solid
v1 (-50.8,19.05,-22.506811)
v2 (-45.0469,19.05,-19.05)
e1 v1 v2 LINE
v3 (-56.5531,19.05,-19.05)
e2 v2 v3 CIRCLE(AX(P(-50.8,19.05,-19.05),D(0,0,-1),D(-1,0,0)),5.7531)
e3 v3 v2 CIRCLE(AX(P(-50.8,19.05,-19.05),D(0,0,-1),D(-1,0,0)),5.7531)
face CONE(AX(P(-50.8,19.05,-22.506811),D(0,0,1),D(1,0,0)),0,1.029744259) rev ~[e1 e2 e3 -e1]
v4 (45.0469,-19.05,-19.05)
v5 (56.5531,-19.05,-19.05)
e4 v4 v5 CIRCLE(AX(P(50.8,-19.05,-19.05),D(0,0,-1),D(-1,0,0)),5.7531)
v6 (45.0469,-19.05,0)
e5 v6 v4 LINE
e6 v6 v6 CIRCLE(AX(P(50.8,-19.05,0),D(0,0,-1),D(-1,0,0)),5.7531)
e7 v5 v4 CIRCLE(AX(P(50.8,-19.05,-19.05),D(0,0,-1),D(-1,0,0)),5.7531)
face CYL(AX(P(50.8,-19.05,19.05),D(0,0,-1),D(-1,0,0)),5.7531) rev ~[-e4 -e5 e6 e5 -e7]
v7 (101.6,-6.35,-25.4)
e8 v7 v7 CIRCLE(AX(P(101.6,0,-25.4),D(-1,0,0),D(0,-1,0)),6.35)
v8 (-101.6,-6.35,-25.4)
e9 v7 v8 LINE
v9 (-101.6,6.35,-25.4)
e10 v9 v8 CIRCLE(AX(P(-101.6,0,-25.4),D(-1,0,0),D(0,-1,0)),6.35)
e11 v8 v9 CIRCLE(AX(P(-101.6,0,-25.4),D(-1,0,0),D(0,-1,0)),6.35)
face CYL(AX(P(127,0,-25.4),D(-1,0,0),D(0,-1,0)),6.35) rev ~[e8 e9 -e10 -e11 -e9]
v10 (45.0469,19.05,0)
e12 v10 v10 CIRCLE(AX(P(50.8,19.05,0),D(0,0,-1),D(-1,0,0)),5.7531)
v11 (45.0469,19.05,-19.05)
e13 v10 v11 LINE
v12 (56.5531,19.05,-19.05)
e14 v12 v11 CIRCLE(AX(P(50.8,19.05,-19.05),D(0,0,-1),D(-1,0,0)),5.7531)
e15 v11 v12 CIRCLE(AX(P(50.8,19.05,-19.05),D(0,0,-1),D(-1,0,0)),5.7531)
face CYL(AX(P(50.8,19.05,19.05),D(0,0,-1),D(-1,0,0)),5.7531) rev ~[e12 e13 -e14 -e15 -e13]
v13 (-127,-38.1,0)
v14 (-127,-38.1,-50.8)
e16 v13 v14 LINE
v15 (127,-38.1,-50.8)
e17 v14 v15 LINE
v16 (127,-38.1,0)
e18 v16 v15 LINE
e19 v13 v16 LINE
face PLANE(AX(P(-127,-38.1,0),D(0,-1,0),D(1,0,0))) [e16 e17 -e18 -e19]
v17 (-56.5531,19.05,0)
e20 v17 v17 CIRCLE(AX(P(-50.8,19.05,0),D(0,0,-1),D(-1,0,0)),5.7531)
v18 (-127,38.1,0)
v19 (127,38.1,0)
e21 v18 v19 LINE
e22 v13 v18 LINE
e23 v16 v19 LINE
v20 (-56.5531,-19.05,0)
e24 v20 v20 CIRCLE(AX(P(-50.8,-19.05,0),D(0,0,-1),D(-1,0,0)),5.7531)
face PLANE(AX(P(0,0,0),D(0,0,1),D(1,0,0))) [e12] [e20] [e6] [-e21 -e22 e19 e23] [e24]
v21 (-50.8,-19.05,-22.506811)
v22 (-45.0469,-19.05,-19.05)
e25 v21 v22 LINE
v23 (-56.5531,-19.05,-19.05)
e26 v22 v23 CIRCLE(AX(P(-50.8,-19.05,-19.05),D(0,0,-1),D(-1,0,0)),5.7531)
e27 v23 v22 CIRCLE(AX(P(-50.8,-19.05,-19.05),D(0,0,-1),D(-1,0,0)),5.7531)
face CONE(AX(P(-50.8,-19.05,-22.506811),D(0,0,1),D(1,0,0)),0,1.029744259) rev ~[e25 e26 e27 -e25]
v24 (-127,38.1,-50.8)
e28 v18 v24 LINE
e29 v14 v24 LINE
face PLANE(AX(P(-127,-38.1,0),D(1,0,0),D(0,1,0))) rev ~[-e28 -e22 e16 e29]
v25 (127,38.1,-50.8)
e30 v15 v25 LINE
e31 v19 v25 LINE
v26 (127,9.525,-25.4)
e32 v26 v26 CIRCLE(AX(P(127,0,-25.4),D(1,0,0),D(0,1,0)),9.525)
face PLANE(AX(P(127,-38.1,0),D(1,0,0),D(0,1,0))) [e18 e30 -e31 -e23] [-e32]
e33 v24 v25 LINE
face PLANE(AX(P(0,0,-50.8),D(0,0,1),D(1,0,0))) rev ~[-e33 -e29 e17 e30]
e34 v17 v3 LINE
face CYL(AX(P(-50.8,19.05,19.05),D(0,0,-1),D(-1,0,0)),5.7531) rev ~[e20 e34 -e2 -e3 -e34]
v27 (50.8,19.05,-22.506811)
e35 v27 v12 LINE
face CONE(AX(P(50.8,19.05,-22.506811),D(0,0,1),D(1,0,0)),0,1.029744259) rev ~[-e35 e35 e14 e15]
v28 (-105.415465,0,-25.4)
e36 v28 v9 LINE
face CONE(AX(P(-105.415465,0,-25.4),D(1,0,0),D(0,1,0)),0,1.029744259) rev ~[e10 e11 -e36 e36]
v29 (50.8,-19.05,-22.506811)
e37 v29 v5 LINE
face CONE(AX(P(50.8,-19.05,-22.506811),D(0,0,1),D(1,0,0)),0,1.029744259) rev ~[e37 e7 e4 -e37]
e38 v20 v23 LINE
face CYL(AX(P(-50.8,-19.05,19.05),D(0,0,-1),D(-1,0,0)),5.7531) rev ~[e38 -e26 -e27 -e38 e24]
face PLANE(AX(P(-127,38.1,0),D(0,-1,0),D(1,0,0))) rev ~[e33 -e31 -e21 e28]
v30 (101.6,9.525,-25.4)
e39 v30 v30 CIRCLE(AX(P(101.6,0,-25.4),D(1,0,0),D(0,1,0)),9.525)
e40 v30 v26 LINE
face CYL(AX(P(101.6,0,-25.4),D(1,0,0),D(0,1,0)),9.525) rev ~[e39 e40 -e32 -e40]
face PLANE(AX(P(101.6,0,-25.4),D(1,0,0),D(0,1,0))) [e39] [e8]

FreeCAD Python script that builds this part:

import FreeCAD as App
import Part
import Sketcher
from FreeCAD import Vector
Q = App.Units.Quantity

doc = App.newDocument("Part")
params = doc.addObject("Spreadsheet::Sheet", "Params")
for row, (alias, value) in enumerate([
    ("sketch1_width", "10 in"),
    ("sketch1_height", "3 in"),
    ("pad1_length", "2 in"),
    ("sketch2_diameter", "0.453 in"),
    ("hole_diameter", "0.453 in"),
    ("hole_depth", "0.75 in"),
    ("sketch3_diameter", "0.5 in"),
    ("hole2_diameter", "0.5 in"),
    ("hole2_depth", "9 in"),
    ("hole2_cbore_diameter", "0.75 in"),
    ("hole2_cbore_depth", "1 in"),
], start=1):
    params.set(f"A{row}", alias)
    params.set(f"B{row}", "=" + value)
    params.setAlias(f"B{row}", alias)

body = doc.addObject("PartDesign::Body", "Body")

# Sketch on XY plane
sketch1 = body.newObject("Sketcher::SketchObject", "Sketch")
sketch1.AttachmentSupport = (doc.getObject("XY_Plane"), [""])
sketch1.MapMode = "FlatFace"
sketch1.addGeometry([
    Part.LineSegment(Vector(-127, 38, 0), Vector(-127, -38, 0)),
    Part.LineSegment(Vector(-127, -38, 0), Vector(127, -38, 0)),
    Part.LineSegment(Vector(127, -38, 0), Vector(127, 38, 0)),
    Part.LineSegment(Vector(127, 38, 0), Vector(-127, 38, 0)),
], False)
sketch1.addConstraint([
    Sketcher.Constraint("Coincident", 0, 2, 1, 1),
    Sketcher.Constraint("Coincident", 1, 2, 2, 1),
    Sketcher.Constraint("Coincident", 2, 2, 3, 1),
    Sketcher.Constraint("Coincident", 3, 2, 0, 1),
    Sketcher.Constraint("Vertical", 0),
    Sketcher.Constraint("Horizontal", 1),
    Sketcher.Constraint("Vertical", 2),
    Sketcher.Constraint("Horizontal", 3),
    Sketcher.Constraint("Symmetric", 0, 2, 2, 2, -1, 1),
    Sketcher.Constraint("DistanceX", 1, 1, 1, 2, Q("10 in")),
    Sketcher.Constraint("DistanceY", 0, 2, 0, 1, Q("3 in")),
])
sketch1.setExpression("Constraints[9]", "Params.sketch1_width")
sketch1.setExpression("Constraints[10]", "Params.sketch1_height")
pad1 = body.newObject("PartDesign::Pad", "Pad")
pad1.Profile = sketch1
pad1.setExpression("Length", "Params.pad1_length")
pad1.Reversed = True

# Sketch on XY plane
sketch2 = body.newObject("Sketcher::SketchObject", "Sketch001")
sketch2.AttachmentSupport = (doc.getObject("XY_Plane"), [""])
sketch2.MapMode = "FlatFace"
sketch2.addGeometry([
    Part.Circle(Vector(-51, 19, 0), Vector(0, 0, 1), 6),
    Part.Circle(Vector(51, 19, 0), Vector(0, 0, 1), 6),
    Part.Circle(Vector(51, -19, 0), Vector(0, 0, 1), 6),
    Part.Circle(Vector(-51, -19, 0), Vector(0, 0, 1), 6),
], False)
sketch2.addConstraint([
    Sketcher.Constraint("Equal", 0, 1),
    Sketcher.Constraint("Equal", 1, 2),
    Sketcher.Constraint("Equal", 2, 3),
    Sketcher.Constraint("Symmetric", 0, 3, 2, 3, -1, 1),
    Sketcher.Constraint("Symmetric", 1, 3, 3, 3, -1, 1),
    Sketcher.Constraint("Symmetric", 0, 3, 1, 3, -2),
    Sketcher.Constraint("Diameter", 0, Q("0.453 in")),
    Sketcher.Constraint("DistanceX", 0, 3, -1, 1, Q("2 in")),
    Sketcher.Constraint("DistanceY", 2, 3, 1, 3, Q("1.5 in")),
])
sketch2.setExpression("Constraints[6]", "Params.sketch2_diameter")
doc.recompute()
hole = body.newObject("PartDesign::Hole", "Hole")
hole.Profile = sketch2
hole.ThreadType = "None"
hole.setExpression("Diameter", "Params.hole_diameter")
hole.DepthType = "Dimension"
hole.setExpression("Depth", "Params.hole_depth")
hole.DrillPoint = "Angled"
hole.DrillPointAngle = 118

# Sketch on YZ plane
sketch3 = body.newObject("Sketcher::SketchObject", "Sketch002")
sketch3.AttachmentSupport = (doc.getObject("YZ_Plane"), [""])
sketch3.MapMode = "FlatFace"
sketch3.AttachmentOffset = App.Placement(Vector(0, 0, 5 * 25.4), App.Rotation())
sketch3.addGeometry(Part.Circle(Vector(0, -25, 0), Vector(0, 0, 1), 6), False)
sketch3.addConstraint([
    Sketcher.Constraint("PointOnObject", 0, 3, -2),
    Sketcher.Constraint("Diameter", 0, Q("0.5 in")),
    Sketcher.Constraint("DistanceY", 0, 3, -1, 1, Q("1 in")),
])
sketch3.setExpression("Constraints[1]", "Params.sketch3_diameter")
doc.recompute()
hole2 = body.newObject("PartDesign::Hole", "Hole001")
hole2.Profile = sketch3
hole2.ThreadType = "None"
hole2.setExpression("Diameter", "Params.hole2_diameter")
hole2.DepthType = "Dimension"
hole2.setExpression("Depth", "Params.hole2_depth")
hole2.DrillPoint = "Angled"
hole2.DrillPointAngle = 118
hole2.HoleCutType = "Counterbore"
hole2.setExpression("HoleCutDiameter", "Params.hole2_cbore_diameter")
hole2.setExpression("HoleCutDepth", "Params.hole2_cbore_depth")

doc.recompute()
